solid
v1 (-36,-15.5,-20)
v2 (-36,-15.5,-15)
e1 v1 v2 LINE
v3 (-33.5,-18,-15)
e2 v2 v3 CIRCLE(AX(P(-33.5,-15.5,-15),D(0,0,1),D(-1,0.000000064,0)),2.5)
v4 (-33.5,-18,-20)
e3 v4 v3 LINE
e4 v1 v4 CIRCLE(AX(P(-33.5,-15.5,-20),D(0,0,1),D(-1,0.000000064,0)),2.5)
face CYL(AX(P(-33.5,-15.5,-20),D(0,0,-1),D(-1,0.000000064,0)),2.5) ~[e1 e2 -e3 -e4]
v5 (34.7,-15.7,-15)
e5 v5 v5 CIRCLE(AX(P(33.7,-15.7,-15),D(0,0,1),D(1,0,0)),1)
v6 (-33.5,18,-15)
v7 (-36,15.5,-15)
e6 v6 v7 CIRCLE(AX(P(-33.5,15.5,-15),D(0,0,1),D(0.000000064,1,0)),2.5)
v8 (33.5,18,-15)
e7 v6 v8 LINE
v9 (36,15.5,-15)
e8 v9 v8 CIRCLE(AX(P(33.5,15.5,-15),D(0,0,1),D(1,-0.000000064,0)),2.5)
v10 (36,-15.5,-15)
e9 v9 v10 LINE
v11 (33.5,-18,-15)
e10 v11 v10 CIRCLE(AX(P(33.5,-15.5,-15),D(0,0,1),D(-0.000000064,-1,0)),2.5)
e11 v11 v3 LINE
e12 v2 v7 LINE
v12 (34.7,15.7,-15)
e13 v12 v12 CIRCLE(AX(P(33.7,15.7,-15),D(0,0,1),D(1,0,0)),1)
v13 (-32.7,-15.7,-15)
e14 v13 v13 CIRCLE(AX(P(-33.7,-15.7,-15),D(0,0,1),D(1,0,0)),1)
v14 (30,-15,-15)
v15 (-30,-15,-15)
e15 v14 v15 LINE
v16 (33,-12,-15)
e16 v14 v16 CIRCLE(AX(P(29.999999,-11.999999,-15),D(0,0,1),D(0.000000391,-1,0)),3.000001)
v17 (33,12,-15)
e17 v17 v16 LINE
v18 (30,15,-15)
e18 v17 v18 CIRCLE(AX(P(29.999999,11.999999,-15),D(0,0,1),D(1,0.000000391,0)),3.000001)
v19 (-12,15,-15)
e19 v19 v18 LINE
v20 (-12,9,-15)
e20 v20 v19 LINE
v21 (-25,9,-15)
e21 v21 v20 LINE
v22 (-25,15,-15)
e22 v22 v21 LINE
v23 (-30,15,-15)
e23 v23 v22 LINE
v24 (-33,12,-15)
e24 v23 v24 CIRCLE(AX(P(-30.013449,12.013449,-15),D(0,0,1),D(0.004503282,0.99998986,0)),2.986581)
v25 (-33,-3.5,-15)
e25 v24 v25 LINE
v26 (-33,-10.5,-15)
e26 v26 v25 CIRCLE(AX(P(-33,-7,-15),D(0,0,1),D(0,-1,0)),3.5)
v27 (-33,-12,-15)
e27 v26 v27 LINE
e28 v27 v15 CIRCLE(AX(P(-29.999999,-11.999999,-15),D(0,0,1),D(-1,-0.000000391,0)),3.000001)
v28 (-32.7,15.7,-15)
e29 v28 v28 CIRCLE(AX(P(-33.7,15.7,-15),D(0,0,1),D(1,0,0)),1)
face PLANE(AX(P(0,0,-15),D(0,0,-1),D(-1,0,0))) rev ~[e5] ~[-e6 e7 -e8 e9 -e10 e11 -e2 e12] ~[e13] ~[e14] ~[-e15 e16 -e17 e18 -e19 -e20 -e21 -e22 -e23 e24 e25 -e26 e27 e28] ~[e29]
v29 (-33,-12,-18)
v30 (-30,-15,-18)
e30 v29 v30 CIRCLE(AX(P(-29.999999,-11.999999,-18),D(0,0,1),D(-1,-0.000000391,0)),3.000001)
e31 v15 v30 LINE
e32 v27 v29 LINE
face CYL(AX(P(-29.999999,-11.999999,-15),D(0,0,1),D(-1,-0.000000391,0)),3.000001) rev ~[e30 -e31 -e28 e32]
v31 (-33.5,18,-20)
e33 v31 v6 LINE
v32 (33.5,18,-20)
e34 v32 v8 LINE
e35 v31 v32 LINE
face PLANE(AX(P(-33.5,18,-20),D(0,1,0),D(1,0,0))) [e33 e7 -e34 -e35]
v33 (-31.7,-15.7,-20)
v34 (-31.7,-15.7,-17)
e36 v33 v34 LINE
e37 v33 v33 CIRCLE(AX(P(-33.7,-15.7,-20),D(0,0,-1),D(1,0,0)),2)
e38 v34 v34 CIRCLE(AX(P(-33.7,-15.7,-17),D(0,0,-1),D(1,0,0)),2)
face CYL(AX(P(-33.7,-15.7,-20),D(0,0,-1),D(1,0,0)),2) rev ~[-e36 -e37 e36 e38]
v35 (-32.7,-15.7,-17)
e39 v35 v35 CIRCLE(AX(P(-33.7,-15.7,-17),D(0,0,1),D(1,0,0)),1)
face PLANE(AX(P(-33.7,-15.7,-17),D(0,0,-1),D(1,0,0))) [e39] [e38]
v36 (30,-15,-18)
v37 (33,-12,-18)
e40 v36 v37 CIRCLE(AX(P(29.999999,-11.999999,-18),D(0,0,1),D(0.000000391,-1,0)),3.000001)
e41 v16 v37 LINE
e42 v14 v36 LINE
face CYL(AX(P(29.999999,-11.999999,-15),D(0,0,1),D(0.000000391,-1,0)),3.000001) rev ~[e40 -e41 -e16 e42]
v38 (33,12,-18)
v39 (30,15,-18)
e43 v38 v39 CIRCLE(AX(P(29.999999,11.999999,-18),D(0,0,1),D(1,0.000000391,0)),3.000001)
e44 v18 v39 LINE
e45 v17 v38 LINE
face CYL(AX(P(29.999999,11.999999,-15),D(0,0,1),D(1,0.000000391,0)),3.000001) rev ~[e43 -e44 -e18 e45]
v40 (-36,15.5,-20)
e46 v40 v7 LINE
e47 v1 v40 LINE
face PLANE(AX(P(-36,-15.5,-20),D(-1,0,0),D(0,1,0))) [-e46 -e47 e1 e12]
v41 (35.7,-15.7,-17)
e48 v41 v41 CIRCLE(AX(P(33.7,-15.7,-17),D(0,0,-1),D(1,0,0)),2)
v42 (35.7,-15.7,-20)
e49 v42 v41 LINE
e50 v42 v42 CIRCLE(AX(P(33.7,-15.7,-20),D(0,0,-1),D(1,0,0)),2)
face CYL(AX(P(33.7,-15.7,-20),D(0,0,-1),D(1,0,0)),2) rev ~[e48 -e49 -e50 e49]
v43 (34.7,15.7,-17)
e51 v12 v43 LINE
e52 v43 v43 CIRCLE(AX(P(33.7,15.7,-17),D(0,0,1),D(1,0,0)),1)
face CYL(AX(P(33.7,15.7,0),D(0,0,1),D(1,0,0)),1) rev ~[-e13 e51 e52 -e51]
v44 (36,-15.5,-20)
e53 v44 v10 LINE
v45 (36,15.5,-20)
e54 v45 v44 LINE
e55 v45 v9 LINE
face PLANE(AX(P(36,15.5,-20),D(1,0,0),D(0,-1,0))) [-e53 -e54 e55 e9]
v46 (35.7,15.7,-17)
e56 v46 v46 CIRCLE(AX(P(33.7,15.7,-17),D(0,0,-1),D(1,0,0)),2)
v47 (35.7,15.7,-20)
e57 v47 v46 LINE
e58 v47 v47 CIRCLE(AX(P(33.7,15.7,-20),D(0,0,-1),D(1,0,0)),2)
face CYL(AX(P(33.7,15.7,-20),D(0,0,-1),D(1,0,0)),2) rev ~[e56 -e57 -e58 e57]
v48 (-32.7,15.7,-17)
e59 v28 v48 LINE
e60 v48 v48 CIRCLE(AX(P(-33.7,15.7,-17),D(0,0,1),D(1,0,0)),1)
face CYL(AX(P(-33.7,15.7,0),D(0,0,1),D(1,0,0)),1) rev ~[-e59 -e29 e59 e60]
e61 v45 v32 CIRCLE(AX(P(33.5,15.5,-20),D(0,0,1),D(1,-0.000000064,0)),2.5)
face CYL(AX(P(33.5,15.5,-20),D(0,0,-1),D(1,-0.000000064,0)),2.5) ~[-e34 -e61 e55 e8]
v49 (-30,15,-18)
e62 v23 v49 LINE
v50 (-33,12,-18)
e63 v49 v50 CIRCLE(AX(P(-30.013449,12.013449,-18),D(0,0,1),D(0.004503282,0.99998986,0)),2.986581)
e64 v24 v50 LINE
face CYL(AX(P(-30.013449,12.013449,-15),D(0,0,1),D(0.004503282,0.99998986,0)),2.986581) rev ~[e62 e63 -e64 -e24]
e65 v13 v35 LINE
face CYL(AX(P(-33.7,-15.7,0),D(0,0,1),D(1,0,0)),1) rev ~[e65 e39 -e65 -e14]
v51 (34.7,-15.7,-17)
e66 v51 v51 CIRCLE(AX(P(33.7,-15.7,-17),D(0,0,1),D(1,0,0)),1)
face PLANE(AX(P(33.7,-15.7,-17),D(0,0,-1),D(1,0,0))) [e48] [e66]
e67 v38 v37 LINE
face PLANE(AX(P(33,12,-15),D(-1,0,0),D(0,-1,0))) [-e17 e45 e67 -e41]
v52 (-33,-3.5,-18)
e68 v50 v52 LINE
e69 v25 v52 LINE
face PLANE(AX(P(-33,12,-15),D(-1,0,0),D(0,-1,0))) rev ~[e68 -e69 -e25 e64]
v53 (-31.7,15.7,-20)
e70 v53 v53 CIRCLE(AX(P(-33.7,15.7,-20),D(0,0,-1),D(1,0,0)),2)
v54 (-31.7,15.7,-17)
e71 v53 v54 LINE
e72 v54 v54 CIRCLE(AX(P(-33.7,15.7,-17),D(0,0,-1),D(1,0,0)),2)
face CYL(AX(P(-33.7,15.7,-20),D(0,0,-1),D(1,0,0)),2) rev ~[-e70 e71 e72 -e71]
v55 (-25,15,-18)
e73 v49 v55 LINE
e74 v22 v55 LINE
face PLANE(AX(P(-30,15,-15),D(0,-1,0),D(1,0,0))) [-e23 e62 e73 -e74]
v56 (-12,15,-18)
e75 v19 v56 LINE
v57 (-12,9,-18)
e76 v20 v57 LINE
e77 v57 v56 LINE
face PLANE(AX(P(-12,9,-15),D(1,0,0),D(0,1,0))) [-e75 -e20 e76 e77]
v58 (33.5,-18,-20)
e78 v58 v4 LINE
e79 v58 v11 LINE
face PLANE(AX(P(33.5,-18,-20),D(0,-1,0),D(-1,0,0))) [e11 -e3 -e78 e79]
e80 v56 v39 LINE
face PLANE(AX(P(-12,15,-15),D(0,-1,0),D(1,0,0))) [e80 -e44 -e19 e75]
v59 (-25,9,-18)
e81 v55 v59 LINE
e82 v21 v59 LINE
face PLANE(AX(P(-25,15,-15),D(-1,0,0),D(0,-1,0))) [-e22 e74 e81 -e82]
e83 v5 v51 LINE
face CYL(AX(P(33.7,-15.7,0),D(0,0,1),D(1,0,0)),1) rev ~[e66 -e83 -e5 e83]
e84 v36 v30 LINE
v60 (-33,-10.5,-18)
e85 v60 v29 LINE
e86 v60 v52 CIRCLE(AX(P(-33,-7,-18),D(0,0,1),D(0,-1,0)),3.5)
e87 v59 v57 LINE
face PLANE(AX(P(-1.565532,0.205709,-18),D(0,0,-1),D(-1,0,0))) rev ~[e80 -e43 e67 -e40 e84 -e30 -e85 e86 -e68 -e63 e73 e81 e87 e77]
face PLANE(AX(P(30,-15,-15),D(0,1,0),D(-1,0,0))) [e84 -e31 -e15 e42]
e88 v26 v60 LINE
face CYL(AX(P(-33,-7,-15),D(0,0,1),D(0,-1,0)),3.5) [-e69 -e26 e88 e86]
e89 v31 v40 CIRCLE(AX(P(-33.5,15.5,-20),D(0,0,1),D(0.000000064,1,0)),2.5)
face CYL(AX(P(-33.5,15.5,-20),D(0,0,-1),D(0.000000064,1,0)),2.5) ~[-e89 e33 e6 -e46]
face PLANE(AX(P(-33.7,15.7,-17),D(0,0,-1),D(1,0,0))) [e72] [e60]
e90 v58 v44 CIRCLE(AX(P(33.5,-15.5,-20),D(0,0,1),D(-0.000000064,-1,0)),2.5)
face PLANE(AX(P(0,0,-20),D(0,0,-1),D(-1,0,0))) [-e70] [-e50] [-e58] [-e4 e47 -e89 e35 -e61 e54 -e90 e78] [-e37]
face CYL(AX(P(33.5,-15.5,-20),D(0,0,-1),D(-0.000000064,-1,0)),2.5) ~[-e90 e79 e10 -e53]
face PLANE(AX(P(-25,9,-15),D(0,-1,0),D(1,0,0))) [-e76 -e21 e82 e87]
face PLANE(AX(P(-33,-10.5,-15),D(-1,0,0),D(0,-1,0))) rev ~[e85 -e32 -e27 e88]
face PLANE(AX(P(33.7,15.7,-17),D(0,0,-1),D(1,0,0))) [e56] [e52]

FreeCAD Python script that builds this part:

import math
import FreeCAD as App
import Part
import Sketcher

V = App.Vector
Q = App.Units.Quantity

doc = App.newDocument("Part")
params = doc.addObject("Spreadsheet::Sheet", "Params")
for row, (alias, value) in enumerate([
    ("sketch1_radius", "2.5 mm"),
    ("sketch1_width", "67 mm"),
    ("sketch1_height", "31 mm"),
    ("pad1_length", "5 mm"),
    ("sketch2_diameter", "2 mm"),
    ("sketch3_diameter", "4 mm"),
    ("pocket2_length", "3 mm"),
    ("sketch4_radius", "3.000001 mm"),
    ("sketch4_radius2", "3.5 mm"),
    ("sketch4_width", "42 mm"),
    ("sketch4_width2", "13 mm"),
    ("sketch4_width3", "5 mm"),
    ("pocket3_length", "3 mm"),
], start=1):
    params.set(f"A{row}", alias)
    params.set(f"B{row}", "=" + value)
    params.setAlias(f"B{row}", alias)

body = doc.addObject("PartDesign::Body", "Body")

# Sketch on XY plane
sketch1 = body.newObject("Sketcher::SketchObject", "Sketch")
sketch1.AttachmentSupport = (doc.getObject("XY_Plane"), [""])
sketch1.MapMode = "FlatFace"
sketch1.AttachmentOffset = App.Placement(V(0, 0, -20), App.Rotation())
sketch1.addGeometry(Part.LineSegment(V(33.5, 18, 0), V(-33.5, 18, 0)), False)
sketch1.addGeometry(Part.ArcOfCircle(Part.Circle(V(-33.5, 15.5, 0), V(0, 0, 1), 2.5), math.radians(90), math.radians(180)), False)
sketch1.addGeometry(Part.LineSegment(V(-36, 15.5, 0), V(-36, -15.5, 0)), False)
sketch1.addGeometry(Part.ArcOfCircle(Part.Circle(V(-33.5, -15.5, 0), V(0, 0, 1), 2.5), math.radians(180), math.radians(270)), False)
sketch1.addGeometry(Part.LineSegment(V(-33.5, -18, 0), V(33.5, -18, 0)), False)
sketch1.addGeometry(Part.ArcOfCircle(Part.Circle(V(33.5, -15.5, 0), V(0, 0, 1), 2.5), math.radians(-90), math.radians(0)), False)
sketch1.addGeometry(Part.LineSegment(V(36, -15.5, 0), V(36, 15.5, 0)), False)
sketch1.addGeometry(Part.ArcOfCircle(Part.Circle(V(33.5, 15.5, 0), V(0, 0, 1), 2.5), math.radians(0), math.radians(90)), False)
sketch1.addConstraint(Sketcher.Constraint("Tangent", 0, 2, 1, 1))
sketch1.addConstraint(Sketcher.Constraint("Tangent", 1, 2, 2, 1))
sketch1.addConstraint(Sketcher.Constraint("Tangent", 2, 2, 3, 1))
sketch1.addConstraint(Sketcher.Constraint("Tangent", 3, 2, 4, 1))
sketch1.addConstraint(Sketcher.Constraint("Tangent", 4, 2, 5, 1))
sketch1.addConstraint(Sketcher.Constraint("Tangent", 5, 2, 6, 1))
sketch1.addConstraint(Sketcher.Constraint("Tangent", 6, 2, 7, 1))
sketch1.addConstraint(Sketcher.Constraint("Tangent", 7, 2, 0, 1))
sketch1.addConstraint(Sketcher.Constraint("Horizontal", 0))
sketch1.addConstraint(Sketcher.Constraint("Vertical", 2))
sketch1.addConstraint(Sketcher.Constraint("Horizontal", 4))
sketch1.addConstraint(Sketcher.Constraint("Vertical", 6))
sketch1.addConstraint(Sketcher.Constraint("Equal", 1, 3))
sketch1.addConstraint(Sketcher.Constraint("Equal", 3, 5))
sketch1.addConstraint(Sketcher.Constraint("Equal", 5, 7))
sketch1.addConstraint(Sketcher.Constraint("Symmetric", 1, 3, 5, 3, -1, 1))
sketch1.addConstraint(Sketcher.Constraint("Radius", 1, Q("2.5 mm")))
sketch1.addConstraint(Sketcher.Constraint("DistanceX", 0, 2, 0, 1, Q("67 mm")))
sketch1.addConstraint(Sketcher.Constraint("DistanceY", 2, 2, 2, 1, Q("31 mm")))
sketch1.setExpression("Constraints[16]", "Params.sketch1_radius")
sketch1.setExpression("Constraints[17]", "Params.sketch1_width")
sketch1.setExpression("Constraints[18]", "Params.sketch1_height")
pad1 = body.newObject("PartDesign::Pad", "Pad")
pad1.Profile = sketch1
pad1.setExpression("Length", "Params.pad1_length")

# Sketch on XY plane
sketch2 = body.newObject("Sketcher::SketchObject", "Sketch001")
sketch2.AttachmentSupport = (doc.getObject("XY_Plane"), [""])
sketch2.MapMode = "FlatFace"
sketch2.addGeometry(Part.Circle(V(-33.7, 15.7, 0), V(0, 0, 1), 1), False)
sketch2.addGeometry(Part.Circle(V(33.7, 15.7, 0), V(0, 0, 1), 1), False)
sketch2.addGeometry(Part.Circle(V(33.7, -15.7, 0), V(0, 0, 1), 1), False)
sketch2.addGeometry(Part.Circle(V(-33.7, -15.7, 0), V(0, 0, 1), 1), False)
sketch2.addConstraint(Sketcher.Constraint("Equal", 0, 1))
sketch2.addConstraint(Sketcher.Constraint("Equal", 1, 2))
sketch2.addConstraint(Sketcher.Constraint("Equal", 2, 3))
sketch2.addConstraint(Sketcher.Constraint("Symmetric", 0, 3, 2, 3, -1, 1))
sketch2.addConstraint(Sketcher.Constraint("Symmetric", 1, 3, 3, 3, -1, 1))
sketch2.addConstraint(Sketcher.Constraint("Symmetric", 0, 3, 1, 3, -2))
sketch2.addConstraint(Sketcher.Constraint("Diameter", 0, Q("2 mm")))
sketch2.addConstraint(Sketcher.Constraint("DistanceX", 0, 3, -1, 1, Q("33.7 mm")))
sketch2.addConstraint(Sketcher.Constraint("DistanceY", -1, 1, 0, 3, Q("15.7 mm")))
sketch2.setExpression("Constraints[6]", "Params.sketch2_diameter")
pocket1 = body.newObject("PartDesign::Pocket", "Pocket")
pocket1.Profile = sketch2
pocket1.Type = "ThroughAll"

# Sketch on XY plane
sketch3 = body.newObject("Sketcher::SketchObject", "Sketch002")
sketch3.AttachmentSupport = (doc.getObject("XY_Plane"), [""])
sketch3.MapMode = "FlatFace"
sketch3.AttachmentOffset = App.Placement(V(0, 0, -20), App.Rotation())
sketch3.addGeometry(Part.Circle(V(-33.7, -15.7, 0), V(0, 0, 1), 2), False)
sketch3.addGeometry(Part.Circle(V(33.7, -15.7, 0), V(0, 0, 1), 2), False)
sketch3.addGeometry(Part.Circle(V(33.7, 15.7, 0), V(0, 0, 1), 2), False)
sketch3.addGeometry(Part.Circle(V(-33.7, 15.7, 0), V(0, 0, 1), 2), False)
sketch3.addConstraint(Sketcher.Constraint("Equal", 0, 1))
sketch3.addConstraint(Sketcher.Constraint("Equal", 1, 2))
sketch3.addConstraint(Sketcher.Constraint("Equal", 2, 3))
sketch3.addConstraint(Sketcher.Constraint("Symmetric", 0, 3, 2, 3, -1, 1))
sketch3.addConstraint(Sketcher.Constraint("Symmetric", 1, 3, 3, 3, -1, 1))
sketch3.addConstraint(Sketcher.Constraint("Symmetric", 0, 3, 1, 3, -2))
sketch3.addConstraint(Sketcher.Constraint("Diameter", 0, Q("4 mm")))
sketch3.addConstraint(Sketcher.Constraint("DistanceX", 0, 3, -1, 1, Q("33.7 mm")))
sketch3.addConstraint(Sketcher.Constraint("DistanceY", 0, 3, -1, 1, Q("15.7 mm")))
sketch3.setExpression("Constraints[6]", "Params.sketch3_diameter")
pocket2 = body.newObject("PartDesign::Pocket", "Pocket001")
pocket2.Profile = sketch3
pocket2.setExpression("Length", "Params.pocket2_length")
pocket2.Reversed = True

# Sketch on XY plane
sketch4 = body.newObject("Sketcher::SketchObject", "Sketch003")
sketch4.AttachmentSupport = (doc.getObject("XY_Plane"), [""])
sketch4.MapMode = "FlatFace"
sketch4.AttachmentOffset = App.Placement(V(0, 0, -15), App.Rotation())
sketch4.addGeometry(Part.LineSegment(V(33, -12, 0), V(33, 12, 0)), False)
sketch4.addGeometry(Part.ArcOfCircle(Part.Circle(V(30, 12, 0), V(0, 0, 1), 3), math.radians(0), math.radians(90)), False)
sketch4.addGeometry(Part.LineSegment(V(30, 15, 0), V(-12, 15, 0)), False)
sketch4.addGeometry(Part.LineSegment(V(-12, 15, 0), V(-12, 9, 0)), False)
sketch4.addGeometry(Part.LineSegment(V(-12, 9, 0), V(-25, 9, 0)), False)
sketch4.addGeometry(Part.LineSegment(V(-25, 9, 0), V(-25, 15, 0)), False)
sketch4.addGeometry(Part.LineSegment(V(-25, 15, 0), V(-30, 15, 0)), False)
sketch4.addGeometry(Part.ArcOfCircle(Part.Circle(V(-30, 12, 0), V(0, 0, 1), 3), math.radians(90), math.radians(180)), False)
sketch4.addGeometry(Part.LineSegment(V(-33, 12, 0), V(-33, -3.5, 0)), False)
sketch4.addGeometry(Part.ArcOfCircle(Part.Circle(V(-33, -7, 0), V(0, 0, 1), 3.5), math.radians(-90), math.radians(90)), False)
sketch4.addGeometry(Part.LineSegment(V(-33, -10.5, 0), V(-33, -12, 0)), False)
sketch4.addGeometry(Part.ArcOfCircle(Part.Circle(V(-30, -12, 0), V(0, 0, 1), 3), math.radians(-180), math.radians(-90)), False)
sketch4.addGeometry(Part.LineSegment(V(-30, -15, 0), V(30, -15, 0)), False)
sketch4.addGeometry(Part.ArcOfCircle(Part.Circle(V(30, -12, 0), V(0, 0, 1), 3), math.radians(-90), math.radians(0)), False)
sketch4.addConstraint(Sketcher.Constraint("Tangent", 0, 2, 1, 1))
sketch4.addConstraint(Sketcher.Constraint("Tangent", 1, 2, 2, 1))
sketch4.addConstraint(Sketcher.Constraint("Coincident", 2, 2, 3, 1))
sketch4.addConstraint(Sketcher.Constraint("Coincident", 3, 2, 4, 1))
sketch4.addConstraint(Sketcher.Constraint("Coincident", 4, 2, 5, 1))
sketch4.addConstraint(Sketcher.Constraint("Coincident", 5, 2, 6, 1))
sketch4.addConstraint(Sketcher.Constraint("Coincident", 6, 2, 7, 1))
sketch4.addConstraint(Sketcher.Constraint("Coincident", 7, 2, 8, 1))
sketch4.addConstraint(Sketcher.Constraint("Coincident", 8, 2, 9, 2))
sketch4.addConstraint(Sketcher.Constraint("Coincident", 9, 1, 10, 1))
sketch4.addConstraint(Sketcher.Constraint("Tangent", 10, 2, 11, 1))
sketch4.addConstraint(Sketcher.Constraint("Tangent", 11, 2, 12, 1))
sketch4.addConstraint(Sketcher.Constraint("Tangent", 12, 2, 13, 1))
sketch4.addConstraint(Sketcher.Constraint("Tangent", 13, 2, 0, 1))
sketch4.addConstraint(Sketcher.Constraint("Vertical", 0))
sketch4.addConstraint(Sketcher.Constraint("Horizontal", 2))
sketch4.addConstraint(Sketcher.Constraint("Vertical", 3))
sketch4.addConstraint(Sketcher.Constraint("Horizontal", 4))
sketch4.addConstraint(Sketcher.Constraint("Vertical", 5))
sketch4.addConstraint(Sketcher.Constraint("Horizontal", 6))
sketch4.addConstraint(Sketcher.Constraint("Vertical", 8))
sketch4.addConstraint(Sketcher.Constraint("Vertical", 10))
sketch4.addConstraint(Sketcher.Constraint("Horizontal", 12))
sketch4.addConstraint(Sketcher.Constraint("Equal", 1, 11))
sketch4.addConstraint(Sketcher.Constraint("Equal", 11, 13))
sketch4.addConstraint(Sketcher.Constraint("Symmetric", 1, 3, 11, 3, -1, 1))
sketch4.addConstraint(Sketcher.Constraint("Symmetric", 6, 2, 12, 2, -1, 1))
sketch4.addConstraint(Sketcher.Constraint("Symmetric", 7, 2, 13, 2, -1, 1))
sketch4.addConstraint(Sketcher.Constraint("Vertical", 9, 3, 7, 2))
sketch4.addConstraint(Sketcher.Constraint("Radius", 1, Q("3.000001 mm")))
sketch4.addConstraint(Sketcher.Constraint("Radius", 9, Q("3.5 mm")))
sketch4.addConstraint(Sketcher.Constraint("DistanceX", 2, 2, 2, 1, Q("42 mm")))
sketch4.addConstraint(Sketcher.Constraint("DistanceX", 4, 2, 4, 1, Q("13 mm")))
sketch4.addConstraint(Sketcher.Constraint("DistanceX", 6, 2, 6, 1, Q("5 mm")))
sketch4.addConstraint(Sketcher.Constraint("DistanceY", 0, 1, 0, 2, Q("24 mm")))
sketch4.addConstraint(Sketcher.Constraint("DistanceY", 3, 2, 3, 1, Q("6 mm")))
sketch4.addConstraint(Sketcher.Constraint("DistanceY", 8, 2, 8, 1, Q("15.5 mm")))
sketch4.addConstraint(Sketcher.Constraint("Radius", 7, Q("2.986581 mm")))
sketch4.setExpression("Constraints[29]", "Params.sketch4_radius")
sketch4.setExpression("Constraints[30]", "Params.sketch4_radius2")
sketch4.setExpression("Constraints[31]", "Params.sketch4_width")
sketch4.setExpression("Constraints[32]", "Params.sketch4_width2")
sketch4.setExpression("Constraints[33]", "Params.sketch4_width3")
pocket3 = body.newObject("PartDesign::Pocket", "Pocket002")
pocket3.Profile = sketch4
pocket3.setExpression("Length", "Params.pocket3_length")

doc.recompute()
